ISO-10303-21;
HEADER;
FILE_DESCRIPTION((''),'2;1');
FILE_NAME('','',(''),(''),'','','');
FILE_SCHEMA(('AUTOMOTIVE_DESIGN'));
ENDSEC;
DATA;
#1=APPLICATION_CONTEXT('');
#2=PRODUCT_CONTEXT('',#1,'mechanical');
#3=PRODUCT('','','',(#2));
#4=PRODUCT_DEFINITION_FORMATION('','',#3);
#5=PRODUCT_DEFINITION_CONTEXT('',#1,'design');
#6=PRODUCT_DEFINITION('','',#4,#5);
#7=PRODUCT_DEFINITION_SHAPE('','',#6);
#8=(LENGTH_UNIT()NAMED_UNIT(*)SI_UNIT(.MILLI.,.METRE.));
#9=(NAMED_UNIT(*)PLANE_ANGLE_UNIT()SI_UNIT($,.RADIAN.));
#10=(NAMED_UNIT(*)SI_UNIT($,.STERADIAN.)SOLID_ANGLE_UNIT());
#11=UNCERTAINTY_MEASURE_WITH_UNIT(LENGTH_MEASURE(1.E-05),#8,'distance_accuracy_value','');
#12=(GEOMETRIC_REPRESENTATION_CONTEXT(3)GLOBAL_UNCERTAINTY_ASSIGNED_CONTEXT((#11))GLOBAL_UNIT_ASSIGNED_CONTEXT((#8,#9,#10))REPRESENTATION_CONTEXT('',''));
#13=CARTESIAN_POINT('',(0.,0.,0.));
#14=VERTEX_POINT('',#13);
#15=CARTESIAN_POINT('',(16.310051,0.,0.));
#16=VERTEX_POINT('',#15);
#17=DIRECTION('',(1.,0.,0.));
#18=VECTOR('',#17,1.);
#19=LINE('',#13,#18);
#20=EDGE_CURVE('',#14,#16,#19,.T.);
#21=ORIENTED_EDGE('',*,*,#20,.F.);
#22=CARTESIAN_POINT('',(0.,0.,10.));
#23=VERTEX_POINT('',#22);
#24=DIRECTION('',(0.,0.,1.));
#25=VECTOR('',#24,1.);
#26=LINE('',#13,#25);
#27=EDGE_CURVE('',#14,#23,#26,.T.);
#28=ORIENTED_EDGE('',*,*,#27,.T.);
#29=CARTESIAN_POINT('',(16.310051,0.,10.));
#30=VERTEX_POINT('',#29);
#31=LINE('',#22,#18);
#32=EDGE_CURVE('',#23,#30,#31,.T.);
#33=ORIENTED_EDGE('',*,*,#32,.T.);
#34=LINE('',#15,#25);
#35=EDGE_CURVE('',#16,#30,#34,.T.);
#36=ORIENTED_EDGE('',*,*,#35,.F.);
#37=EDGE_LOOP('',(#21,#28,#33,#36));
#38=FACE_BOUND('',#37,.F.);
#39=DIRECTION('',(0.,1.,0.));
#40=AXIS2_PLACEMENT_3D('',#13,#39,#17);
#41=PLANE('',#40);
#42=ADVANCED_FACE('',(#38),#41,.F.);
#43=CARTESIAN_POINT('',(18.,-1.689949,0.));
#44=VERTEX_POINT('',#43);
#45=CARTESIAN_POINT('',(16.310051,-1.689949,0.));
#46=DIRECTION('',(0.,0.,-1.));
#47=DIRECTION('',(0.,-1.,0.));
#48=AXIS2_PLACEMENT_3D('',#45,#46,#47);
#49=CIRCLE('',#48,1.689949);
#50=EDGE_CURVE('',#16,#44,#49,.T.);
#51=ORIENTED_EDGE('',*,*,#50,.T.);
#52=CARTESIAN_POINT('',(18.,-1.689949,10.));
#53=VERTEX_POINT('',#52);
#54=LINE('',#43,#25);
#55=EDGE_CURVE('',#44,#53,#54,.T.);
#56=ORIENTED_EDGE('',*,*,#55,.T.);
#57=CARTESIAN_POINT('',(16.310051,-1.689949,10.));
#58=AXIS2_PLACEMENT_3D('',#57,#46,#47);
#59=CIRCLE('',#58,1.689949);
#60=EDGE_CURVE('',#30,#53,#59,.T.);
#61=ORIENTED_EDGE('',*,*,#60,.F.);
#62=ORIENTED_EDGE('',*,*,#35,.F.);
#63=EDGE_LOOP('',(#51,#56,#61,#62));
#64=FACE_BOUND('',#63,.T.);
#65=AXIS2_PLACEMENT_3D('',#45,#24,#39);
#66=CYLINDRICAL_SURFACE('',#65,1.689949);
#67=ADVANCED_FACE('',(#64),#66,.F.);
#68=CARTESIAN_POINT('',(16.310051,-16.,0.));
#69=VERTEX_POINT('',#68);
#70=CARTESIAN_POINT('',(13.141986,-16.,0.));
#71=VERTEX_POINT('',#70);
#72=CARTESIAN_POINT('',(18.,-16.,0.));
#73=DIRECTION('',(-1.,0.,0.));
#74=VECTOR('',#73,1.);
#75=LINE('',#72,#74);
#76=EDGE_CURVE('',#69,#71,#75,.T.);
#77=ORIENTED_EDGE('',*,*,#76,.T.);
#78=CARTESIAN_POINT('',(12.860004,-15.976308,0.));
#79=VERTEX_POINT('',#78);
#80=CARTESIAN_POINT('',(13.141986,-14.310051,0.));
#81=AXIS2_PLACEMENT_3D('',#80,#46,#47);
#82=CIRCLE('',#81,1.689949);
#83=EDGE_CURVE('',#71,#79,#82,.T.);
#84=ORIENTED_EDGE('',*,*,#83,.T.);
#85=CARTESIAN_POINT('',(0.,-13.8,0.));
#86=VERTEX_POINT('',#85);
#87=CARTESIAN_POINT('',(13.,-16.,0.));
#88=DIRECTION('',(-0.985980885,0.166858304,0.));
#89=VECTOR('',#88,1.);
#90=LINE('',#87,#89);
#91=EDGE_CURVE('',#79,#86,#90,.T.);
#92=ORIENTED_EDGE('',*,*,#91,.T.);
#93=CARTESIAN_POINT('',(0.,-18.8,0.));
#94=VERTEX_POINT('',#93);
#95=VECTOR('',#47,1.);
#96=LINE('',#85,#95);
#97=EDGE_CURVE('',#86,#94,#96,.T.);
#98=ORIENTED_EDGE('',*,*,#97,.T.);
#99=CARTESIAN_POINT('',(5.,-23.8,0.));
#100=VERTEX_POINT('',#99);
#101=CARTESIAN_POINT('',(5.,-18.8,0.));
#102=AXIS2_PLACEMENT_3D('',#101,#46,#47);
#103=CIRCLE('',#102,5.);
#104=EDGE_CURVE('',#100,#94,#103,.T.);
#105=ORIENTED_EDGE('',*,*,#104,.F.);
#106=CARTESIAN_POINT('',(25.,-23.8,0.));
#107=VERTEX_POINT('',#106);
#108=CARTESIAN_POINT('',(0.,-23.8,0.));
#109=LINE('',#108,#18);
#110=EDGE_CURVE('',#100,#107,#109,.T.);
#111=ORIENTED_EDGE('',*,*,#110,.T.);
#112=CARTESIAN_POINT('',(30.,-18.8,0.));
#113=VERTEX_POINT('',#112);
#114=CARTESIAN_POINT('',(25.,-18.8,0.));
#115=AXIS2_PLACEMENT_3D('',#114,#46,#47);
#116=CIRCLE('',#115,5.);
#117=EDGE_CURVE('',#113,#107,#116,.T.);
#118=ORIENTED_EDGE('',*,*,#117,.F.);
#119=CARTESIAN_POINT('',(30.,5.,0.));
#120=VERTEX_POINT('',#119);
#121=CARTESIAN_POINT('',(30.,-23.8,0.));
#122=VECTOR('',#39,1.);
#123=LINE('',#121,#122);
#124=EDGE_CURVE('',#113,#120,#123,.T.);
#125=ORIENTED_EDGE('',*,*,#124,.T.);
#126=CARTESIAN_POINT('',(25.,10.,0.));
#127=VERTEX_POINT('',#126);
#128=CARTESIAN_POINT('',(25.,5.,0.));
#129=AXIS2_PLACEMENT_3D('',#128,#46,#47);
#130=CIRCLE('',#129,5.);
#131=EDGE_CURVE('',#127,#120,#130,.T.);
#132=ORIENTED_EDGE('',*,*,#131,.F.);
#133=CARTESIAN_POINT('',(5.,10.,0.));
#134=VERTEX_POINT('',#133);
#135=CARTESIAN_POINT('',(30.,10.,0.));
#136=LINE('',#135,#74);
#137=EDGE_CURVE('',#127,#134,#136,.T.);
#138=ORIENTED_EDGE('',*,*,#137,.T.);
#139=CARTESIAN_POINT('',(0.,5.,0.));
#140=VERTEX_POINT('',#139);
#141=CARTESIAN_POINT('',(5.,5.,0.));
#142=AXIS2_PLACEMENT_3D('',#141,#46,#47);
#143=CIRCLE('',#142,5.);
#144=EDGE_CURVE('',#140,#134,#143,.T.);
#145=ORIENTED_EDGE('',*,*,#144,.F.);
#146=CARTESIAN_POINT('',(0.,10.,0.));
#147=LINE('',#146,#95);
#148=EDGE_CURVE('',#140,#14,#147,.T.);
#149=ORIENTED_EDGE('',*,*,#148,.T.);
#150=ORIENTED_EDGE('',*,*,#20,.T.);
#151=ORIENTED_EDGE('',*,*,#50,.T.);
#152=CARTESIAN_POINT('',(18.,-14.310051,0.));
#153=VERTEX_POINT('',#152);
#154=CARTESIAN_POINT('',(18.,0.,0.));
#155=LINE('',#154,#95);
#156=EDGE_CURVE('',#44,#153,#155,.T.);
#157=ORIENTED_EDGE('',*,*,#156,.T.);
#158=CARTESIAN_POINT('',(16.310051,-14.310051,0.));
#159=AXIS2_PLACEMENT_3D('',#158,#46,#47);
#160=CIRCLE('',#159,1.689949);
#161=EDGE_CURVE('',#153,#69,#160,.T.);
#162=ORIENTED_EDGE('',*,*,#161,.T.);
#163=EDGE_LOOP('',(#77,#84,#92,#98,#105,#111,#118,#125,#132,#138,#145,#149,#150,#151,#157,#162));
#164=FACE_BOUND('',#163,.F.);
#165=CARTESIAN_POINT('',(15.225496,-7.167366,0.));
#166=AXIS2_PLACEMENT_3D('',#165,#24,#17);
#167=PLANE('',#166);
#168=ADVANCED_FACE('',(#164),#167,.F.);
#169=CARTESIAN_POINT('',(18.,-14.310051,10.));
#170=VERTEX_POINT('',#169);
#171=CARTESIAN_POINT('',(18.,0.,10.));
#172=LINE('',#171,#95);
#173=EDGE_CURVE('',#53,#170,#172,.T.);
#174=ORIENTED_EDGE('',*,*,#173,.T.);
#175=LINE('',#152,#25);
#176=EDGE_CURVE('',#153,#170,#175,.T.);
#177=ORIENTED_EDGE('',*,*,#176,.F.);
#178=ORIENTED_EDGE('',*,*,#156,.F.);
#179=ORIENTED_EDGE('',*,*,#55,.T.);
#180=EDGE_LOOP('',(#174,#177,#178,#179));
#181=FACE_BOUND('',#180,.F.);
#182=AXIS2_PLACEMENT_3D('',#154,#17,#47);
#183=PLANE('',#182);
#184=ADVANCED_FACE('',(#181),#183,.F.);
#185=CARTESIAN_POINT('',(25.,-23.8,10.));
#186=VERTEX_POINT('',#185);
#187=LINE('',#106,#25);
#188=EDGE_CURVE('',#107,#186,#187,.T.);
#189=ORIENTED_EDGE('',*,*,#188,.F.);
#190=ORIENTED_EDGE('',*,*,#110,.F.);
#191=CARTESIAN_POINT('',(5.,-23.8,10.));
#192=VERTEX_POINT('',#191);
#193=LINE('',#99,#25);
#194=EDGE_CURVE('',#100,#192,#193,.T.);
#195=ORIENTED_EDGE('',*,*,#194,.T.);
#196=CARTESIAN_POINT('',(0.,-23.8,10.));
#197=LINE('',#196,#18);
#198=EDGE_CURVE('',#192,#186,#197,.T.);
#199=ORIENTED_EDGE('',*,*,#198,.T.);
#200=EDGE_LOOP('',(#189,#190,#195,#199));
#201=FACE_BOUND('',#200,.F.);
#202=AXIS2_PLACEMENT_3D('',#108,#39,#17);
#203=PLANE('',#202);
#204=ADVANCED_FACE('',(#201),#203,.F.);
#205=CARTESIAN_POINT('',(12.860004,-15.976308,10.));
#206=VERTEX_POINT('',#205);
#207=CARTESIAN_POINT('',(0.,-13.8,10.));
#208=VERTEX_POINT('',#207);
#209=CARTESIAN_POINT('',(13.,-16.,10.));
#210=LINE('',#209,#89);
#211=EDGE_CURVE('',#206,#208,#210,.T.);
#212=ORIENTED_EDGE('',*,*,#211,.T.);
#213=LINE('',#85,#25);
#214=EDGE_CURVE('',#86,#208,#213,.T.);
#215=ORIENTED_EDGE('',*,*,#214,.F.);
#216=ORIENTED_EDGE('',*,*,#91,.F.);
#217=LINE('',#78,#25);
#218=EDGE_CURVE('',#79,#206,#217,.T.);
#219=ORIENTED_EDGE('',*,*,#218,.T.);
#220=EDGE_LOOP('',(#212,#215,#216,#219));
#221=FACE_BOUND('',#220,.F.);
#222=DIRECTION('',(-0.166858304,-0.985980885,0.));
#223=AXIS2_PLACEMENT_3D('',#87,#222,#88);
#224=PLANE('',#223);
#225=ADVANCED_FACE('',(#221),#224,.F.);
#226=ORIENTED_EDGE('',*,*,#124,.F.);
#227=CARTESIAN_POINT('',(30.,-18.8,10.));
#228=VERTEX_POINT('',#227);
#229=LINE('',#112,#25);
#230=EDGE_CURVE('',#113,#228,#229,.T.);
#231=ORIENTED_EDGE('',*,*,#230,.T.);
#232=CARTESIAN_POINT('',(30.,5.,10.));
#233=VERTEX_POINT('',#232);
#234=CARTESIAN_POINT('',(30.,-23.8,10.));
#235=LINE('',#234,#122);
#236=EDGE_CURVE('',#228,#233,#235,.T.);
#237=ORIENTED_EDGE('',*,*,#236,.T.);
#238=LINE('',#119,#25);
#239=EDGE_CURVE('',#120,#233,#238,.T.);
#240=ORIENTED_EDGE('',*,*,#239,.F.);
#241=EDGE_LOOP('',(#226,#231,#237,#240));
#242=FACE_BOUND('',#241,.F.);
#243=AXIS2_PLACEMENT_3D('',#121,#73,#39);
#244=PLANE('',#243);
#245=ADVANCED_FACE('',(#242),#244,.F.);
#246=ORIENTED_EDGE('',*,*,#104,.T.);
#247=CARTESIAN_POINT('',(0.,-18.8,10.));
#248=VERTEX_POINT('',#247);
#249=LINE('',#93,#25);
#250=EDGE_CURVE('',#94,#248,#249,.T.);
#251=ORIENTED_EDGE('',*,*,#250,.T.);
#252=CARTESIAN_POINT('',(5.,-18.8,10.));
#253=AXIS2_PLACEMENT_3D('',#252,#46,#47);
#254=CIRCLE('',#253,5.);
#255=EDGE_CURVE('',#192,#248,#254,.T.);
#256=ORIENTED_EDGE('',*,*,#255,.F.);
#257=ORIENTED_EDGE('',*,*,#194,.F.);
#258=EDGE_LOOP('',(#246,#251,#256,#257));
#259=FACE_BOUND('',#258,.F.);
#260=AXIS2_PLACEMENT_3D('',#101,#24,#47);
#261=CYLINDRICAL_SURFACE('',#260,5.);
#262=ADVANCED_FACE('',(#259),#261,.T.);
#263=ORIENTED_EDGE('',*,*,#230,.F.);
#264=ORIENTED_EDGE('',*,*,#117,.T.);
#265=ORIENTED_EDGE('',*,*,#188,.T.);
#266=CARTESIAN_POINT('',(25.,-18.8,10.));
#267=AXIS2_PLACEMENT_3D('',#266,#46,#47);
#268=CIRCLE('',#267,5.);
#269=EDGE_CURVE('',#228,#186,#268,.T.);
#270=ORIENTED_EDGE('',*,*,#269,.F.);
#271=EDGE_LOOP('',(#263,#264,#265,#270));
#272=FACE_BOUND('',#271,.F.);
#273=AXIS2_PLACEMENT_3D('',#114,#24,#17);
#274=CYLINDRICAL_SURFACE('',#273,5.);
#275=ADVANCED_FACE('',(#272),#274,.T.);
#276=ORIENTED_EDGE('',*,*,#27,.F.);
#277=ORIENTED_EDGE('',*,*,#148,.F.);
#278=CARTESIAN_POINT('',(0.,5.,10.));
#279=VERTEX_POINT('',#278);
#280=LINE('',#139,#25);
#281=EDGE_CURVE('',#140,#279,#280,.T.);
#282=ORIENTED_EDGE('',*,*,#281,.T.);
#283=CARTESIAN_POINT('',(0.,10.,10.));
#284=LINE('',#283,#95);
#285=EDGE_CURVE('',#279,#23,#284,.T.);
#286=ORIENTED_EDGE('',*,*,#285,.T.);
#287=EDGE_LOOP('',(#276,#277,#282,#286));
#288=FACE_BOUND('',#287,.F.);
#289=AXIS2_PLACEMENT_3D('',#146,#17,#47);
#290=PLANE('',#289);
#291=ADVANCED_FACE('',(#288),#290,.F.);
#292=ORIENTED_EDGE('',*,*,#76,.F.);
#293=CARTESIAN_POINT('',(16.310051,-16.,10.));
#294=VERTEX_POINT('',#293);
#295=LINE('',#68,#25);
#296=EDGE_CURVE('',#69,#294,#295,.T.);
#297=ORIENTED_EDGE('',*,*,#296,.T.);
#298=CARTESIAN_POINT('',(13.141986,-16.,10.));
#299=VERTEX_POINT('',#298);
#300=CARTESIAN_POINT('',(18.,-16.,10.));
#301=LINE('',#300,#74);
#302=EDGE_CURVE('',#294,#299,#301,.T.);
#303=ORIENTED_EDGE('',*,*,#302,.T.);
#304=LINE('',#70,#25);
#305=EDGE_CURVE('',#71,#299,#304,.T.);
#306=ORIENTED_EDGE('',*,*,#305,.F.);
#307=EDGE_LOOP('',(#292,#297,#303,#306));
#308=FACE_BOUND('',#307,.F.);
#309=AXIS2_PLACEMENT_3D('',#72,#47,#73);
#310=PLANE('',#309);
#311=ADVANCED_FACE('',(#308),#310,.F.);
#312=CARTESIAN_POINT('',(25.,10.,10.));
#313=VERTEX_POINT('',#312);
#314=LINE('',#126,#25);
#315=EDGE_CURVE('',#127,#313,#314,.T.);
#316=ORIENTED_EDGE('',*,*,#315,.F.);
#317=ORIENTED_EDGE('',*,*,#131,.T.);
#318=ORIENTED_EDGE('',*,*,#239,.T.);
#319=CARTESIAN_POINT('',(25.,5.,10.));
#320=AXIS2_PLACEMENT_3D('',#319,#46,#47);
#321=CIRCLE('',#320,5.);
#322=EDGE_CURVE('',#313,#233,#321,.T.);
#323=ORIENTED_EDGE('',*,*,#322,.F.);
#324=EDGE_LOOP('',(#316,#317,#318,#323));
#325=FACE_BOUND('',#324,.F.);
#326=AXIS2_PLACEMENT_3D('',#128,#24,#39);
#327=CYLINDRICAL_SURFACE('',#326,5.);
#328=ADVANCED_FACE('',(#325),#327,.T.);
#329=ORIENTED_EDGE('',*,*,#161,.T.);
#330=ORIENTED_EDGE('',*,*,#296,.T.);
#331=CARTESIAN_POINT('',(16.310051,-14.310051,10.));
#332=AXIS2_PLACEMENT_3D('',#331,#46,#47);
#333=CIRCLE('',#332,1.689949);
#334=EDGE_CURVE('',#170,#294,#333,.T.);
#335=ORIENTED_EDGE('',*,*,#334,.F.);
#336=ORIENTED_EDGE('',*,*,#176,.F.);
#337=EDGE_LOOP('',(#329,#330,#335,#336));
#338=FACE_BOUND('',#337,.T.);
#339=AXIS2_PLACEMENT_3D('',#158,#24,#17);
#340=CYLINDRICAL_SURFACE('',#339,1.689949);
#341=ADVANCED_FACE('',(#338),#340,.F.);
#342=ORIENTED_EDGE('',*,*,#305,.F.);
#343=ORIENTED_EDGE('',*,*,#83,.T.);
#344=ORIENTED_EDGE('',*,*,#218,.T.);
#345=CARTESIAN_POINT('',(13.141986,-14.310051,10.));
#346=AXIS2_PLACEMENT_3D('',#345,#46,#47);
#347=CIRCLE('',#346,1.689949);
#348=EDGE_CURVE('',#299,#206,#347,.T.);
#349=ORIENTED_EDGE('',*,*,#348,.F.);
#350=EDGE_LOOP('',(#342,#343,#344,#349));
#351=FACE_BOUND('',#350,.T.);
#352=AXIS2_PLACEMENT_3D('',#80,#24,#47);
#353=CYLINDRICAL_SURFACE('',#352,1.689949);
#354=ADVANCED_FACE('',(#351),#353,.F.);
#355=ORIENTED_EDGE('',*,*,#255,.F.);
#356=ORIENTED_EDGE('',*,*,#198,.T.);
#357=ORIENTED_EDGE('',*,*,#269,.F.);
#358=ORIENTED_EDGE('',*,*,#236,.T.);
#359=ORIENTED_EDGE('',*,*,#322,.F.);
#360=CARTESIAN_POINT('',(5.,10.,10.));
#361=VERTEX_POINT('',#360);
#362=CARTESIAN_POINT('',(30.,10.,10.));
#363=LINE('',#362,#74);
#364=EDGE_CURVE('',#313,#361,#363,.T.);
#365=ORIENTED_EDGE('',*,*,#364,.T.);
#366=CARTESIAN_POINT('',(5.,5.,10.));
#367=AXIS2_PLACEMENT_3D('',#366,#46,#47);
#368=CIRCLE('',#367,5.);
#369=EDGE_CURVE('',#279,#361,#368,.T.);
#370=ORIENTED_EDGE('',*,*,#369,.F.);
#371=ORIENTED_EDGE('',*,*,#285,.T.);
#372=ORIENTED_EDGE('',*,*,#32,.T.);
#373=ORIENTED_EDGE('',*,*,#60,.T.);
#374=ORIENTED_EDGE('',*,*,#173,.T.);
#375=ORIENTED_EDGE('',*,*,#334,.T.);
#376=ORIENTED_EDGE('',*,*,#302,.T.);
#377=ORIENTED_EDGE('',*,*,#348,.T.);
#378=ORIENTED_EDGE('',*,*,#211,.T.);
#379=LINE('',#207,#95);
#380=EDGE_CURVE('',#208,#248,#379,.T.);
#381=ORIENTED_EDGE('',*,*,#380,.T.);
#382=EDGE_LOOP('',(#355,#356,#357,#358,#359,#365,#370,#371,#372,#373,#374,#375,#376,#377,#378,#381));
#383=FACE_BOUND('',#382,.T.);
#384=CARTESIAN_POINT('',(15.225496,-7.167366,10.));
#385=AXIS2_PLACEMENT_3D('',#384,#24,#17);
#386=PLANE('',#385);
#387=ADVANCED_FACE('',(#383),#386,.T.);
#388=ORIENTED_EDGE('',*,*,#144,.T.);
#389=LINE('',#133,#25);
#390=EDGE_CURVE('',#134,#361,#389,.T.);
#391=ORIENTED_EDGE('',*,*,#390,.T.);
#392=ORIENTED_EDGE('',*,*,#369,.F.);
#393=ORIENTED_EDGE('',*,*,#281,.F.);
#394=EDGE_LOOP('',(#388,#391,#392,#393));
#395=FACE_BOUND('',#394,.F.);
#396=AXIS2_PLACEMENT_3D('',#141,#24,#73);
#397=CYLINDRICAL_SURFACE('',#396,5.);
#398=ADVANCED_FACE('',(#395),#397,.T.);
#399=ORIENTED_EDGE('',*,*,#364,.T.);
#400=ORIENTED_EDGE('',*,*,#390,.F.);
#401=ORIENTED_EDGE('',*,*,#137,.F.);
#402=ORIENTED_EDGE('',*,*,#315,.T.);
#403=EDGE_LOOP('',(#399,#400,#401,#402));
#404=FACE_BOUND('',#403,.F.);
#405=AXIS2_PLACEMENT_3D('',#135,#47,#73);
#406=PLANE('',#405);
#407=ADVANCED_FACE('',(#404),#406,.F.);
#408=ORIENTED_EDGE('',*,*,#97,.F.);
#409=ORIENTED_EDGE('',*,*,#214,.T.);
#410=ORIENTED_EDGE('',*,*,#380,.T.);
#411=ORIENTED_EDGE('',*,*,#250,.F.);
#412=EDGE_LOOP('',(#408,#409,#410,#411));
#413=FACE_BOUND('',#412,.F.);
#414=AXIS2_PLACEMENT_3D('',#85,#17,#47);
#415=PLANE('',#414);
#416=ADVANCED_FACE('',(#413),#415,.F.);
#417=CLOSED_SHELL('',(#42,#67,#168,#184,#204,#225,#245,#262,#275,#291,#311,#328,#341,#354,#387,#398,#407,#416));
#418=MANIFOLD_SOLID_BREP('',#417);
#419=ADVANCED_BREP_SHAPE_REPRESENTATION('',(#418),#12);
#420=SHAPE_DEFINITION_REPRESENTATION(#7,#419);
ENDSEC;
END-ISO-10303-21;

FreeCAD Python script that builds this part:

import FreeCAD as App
import Part
import Sketcher


def edges_at(feature, points):
    """Names of the edges that pass closest to the given points."""
    edges = feature.Shape.Edges
    near = lambda p: min(range(len(edges)), key=lambda i: edges[i].distToShape(Part.Vertex(*p))[0])
    return sorted({f"Edge{near(p) + 1}" for p in points})


def add_polygon(sketch, points):
    """Adds a closed chain of lines whose ends are joined by coincident constraints."""
    first, n = sketch.GeometryCount, len(points)
    for a, b in zip(points, points[1:] + points[:1]):
        sketch.addGeometry(Part.LineSegment(App.Vector(*a, 0), App.Vector(*b, 0)), False)
    for i in range(n):
        sketch.addConstraint(Sketcher.Constraint("Coincident", first + i, 2, first + (i + 1) % n, 1))

doc = App.newDocument("Part")
body = doc.addObject("PartDesign::Body", "Body")

sketch1 = body.newObject("Sketcher::SketchObject", "Sketch")
sketch1.AttachmentSupport = (doc.getObject("XY_Plane"), [""])
sketch1.MapMode = "FlatFace"
add_polygon(sketch1, [(0, 10), (0, 0), (18, 0), (18, -16), (13, -16), (0, -14), (0, -24), (30, -24), (30, 10)])
sketch1.addConstraint(Sketcher.Constraint("Vertical", 0))
sketch1.addConstraint(Sketcher.Constraint("Horizontal", 1))
sketch1.addConstraint(Sketcher.Constraint("Vertical", 2))
sketch1.addConstraint(Sketcher.Constraint("Horizontal", 3))
sketch1.addConstraint(Sketcher.Constraint("Vertical", 5))
sketch1.addConstraint(Sketcher.Constraint("Horizontal", 6))
sketch1.addConstraint(Sketcher.Constraint("Vertical", 7))
sketch1.addConstraint(Sketcher.Constraint("Horizontal", 8))
sketch1.addConstraint(Sketcher.Constraint("Coincident", 0, 2, -1, 1))
sketch1.addConstraint(Sketcher.Constraint("PointOnObject", 4, 2, -2))
sketch1.addConstraint(Sketcher.Constraint("Equal", 0, 5))
sketch1.addConstraint(Sketcher.Constraint("DistanceX", 1, 1, 1, 2, 18.0))
sketch1.addConstraint(Sketcher.Constraint("DistanceX", 3, 2, 3, 1, 5.0))
sketch1.addConstraint(Sketcher.Constraint("DistanceX", 6, 1, 6, 2, 30.0))
sketch1.addConstraint(Sketcher.Constraint("DistanceY", 0, 2, 0, 1, 10.0))
sketch1.addConstraint(Sketcher.Constraint("DistanceY", 2, 2, 2, 1, 16.0))
sketch1.addConstraint(Sketcher.Constraint("DistanceY", 7, 1, 7, 2, 33.8))
pad1 = body.newObject("PartDesign::Pad", "Pad")
pad1.Profile = sketch1
pad1.Length = 10
doc.recompute()

fillet = body.newObject("PartDesign::Fillet", "Fillet")
fillet.Base = (pad1, edges_at(pad1, [(18, 0, 5), (18, -16, 5), (13, -16, 5)]))
fillet.Radius = 1.689949
doc.recompute()

fillet2 = body.newObject("PartDesign::Fillet", "Fillet001")
fillet2.Base = (fillet, edges_at(fillet, [
    (0, 10, 5),
    (30, 10, 5),
    (30, -23.8, 5),
    (0, -23.8, 5),
]))
fillet2.Radius = 5

doc.recompute()
